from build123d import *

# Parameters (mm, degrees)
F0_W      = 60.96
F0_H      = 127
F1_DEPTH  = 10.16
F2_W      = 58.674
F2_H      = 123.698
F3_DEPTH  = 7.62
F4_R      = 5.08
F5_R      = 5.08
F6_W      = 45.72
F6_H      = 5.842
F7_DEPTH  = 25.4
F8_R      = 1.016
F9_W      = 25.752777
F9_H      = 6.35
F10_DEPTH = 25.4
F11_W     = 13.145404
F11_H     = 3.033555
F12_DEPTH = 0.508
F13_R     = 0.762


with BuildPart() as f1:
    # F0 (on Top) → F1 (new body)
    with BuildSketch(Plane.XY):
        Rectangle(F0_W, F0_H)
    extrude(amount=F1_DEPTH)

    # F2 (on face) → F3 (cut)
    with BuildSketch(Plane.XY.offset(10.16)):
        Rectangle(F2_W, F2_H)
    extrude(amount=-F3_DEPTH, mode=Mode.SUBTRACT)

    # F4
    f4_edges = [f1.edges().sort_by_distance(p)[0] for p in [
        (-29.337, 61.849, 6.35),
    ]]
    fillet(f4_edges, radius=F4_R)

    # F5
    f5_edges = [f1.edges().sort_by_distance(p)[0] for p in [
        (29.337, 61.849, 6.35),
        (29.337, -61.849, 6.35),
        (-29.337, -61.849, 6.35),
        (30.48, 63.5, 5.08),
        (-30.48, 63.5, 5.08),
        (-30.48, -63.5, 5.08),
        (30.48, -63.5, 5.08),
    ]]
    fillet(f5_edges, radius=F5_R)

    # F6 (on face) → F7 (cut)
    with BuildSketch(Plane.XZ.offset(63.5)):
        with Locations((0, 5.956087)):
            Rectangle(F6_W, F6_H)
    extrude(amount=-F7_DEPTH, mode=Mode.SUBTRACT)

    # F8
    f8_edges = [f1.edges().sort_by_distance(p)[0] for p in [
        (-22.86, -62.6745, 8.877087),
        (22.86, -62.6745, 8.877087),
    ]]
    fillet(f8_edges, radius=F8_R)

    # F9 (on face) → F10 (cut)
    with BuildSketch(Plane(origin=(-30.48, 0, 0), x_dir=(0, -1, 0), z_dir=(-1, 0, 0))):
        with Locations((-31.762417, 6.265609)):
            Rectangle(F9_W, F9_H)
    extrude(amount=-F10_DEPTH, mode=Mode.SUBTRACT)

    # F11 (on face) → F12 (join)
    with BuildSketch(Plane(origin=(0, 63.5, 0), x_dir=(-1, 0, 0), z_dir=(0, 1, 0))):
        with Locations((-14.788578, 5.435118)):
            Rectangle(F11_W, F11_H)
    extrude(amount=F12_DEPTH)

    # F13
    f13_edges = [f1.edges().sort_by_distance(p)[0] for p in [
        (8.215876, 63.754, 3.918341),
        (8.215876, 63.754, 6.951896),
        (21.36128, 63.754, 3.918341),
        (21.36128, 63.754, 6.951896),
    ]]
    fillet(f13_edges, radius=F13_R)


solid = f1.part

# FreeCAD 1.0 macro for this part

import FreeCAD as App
import Part
import Sketcher
from FreeCAD import Vector
Q = App.Units.Quantity


def edges_at(feature, points):
    """Names of the edges that pass closest to the given points."""
    edges = feature.Shape.Edges
    near = lambda p: min(range(len(edges)), key=lambda i: edges[i].distToShape(Part.Vertex(*p))[0])
    return sorted({f"Edge{near(p) + 1}" for p in points})

doc = App.newDocument("Part")
params = doc.addObject("Spreadsheet::Sheet", "Params")
for row, (alias, value) in enumerate([
    ("sketch1_height", "5 in"),
    ("sketch1_width", "2.4 in"),
    ("pad1_length", "0.4 in"),
    ("sketch2_width", "2.31 in"),
    ("sketch2_height", "4.87 in"),
    ("pocket1_length", "0.3 in"),
    ("fillet_radius", "0.2 in"),
    ("fillet2_radius", "0.2 in"),
    ("sketch3_width", "1.8 in"),
    ("sketch3_height", "0.23 in"),
    ("pocket2_length", "1 in"),
    ("fillet3_radius", "0.04 in"),
    ("sketch4_height", "0.25 in"),
    ("pocket3_length", "1 in"),
    ("pad2_length", "0.02 in"),
    ("fillet4_radius", "0.03 in"),
], start=1):
    params.set(f"A{row}", alias)
    params.set(f"B{row}", "=" + value)
    params.setAlias(f"B{row}", alias)

body = doc.addObject("PartDesign::Body", "Body")

# Sketch on XY plane
sketch1 = body.newObject("Sketcher::SketchObject", "Sketch")
sketch1.AttachmentSupport = (doc.getObject("XY_Plane"), [""])
sketch1.MapMode = "FlatFace"
sketch1.addGeometry([
    Part.LineSegment(Vector(-30.48, 63.5, 0), Vector(-30.48, -63.5, 0)),
    Part.LineSegment(Vector(-30.48, -63.5, 0), Vector(30.48, -63.5, 0)),
    Part.LineSegment(Vector(30.48, -63.5, 0), Vector(30.48, 63.5, 0)),
    Part.LineSegment(Vector(30.48, 63.5, 0), Vector(-30.48, 63.5, 0)),
], False)
sketch1.addConstraint([
    Sketcher.Constraint("Coincident", 0, 2, 1, 1),
    Sketcher.Constraint("Coincident", 1, 2, 2, 1),
    Sketcher.Constraint("Coincident", 2, 2, 3, 1),
    Sketcher.Constraint("Coincident", 3, 2, 0, 1),
    Sketcher.Constraint("Vertical", 0),
    Sketcher.Constraint("Horizontal", 1),
    Sketcher.Constraint("Vertical", 2),
    Sketcher.Constraint("Horizontal", 3),
    Sketcher.Constraint("Symmetric", 0, 2, 2, 2, -1, 1),
    Sketcher.Constraint("DistanceY", 0, 2, 0, 1, Q("5 in")),
    Sketcher.Constraint("DistanceX", 1, 1, 1, 2, Q("2.4 in")),
])
sketch1.setExpression("Constraints[9]", "Params.sketch1_height")
sketch1.setExpression("Constraints[10]", "Params.sketch1_width")
pad1 = body.newObject("PartDesign::Pad", "Pad")
pad1.Profile = sketch1
pad1.setExpression("Length", "Params.pad1_length")

# Sketch on XY plane
sketch2 = body.newObject("Sketcher::SketchObject", "Sketch001")
sketch2.AttachmentSupport = (doc.getObject("XY_Plane"), [""])
sketch2.MapMode = "FlatFace"
sketch2.AttachmentOffset = App.Placement(Vector(0, 0, 0.4 * 25.4), App.Rotation())
sketch2.addGeometry([
    Part.LineSegment(Vector(-29.337, 61.849, 0), Vector(-29.337, -61.849, 0)),
    Part.LineSegment(Vector(-29.337, -61.849, 0), Vector(29.337, -61.849, 0)),
    Part.LineSegment(Vector(29.337, -61.849, 0), Vector(29.337, 61.849, 0)),
    Part.LineSegment(Vector(29.337, 61.849, 0), Vector(-29.337, 61.849, 0)),
], False)
sketch2.addConstraint([
    Sketcher.Constraint("Coincident", 0, 2, 1, 1),
    Sketcher.Constraint("Coincident", 1, 2, 2, 1),
    Sketcher.Constraint("Coincident", 2, 2, 3, 1),
    Sketcher.Constraint("Coincident", 3, 2, 0, 1),
    Sketcher.Constraint("Vertical", 0),
    Sketcher.Constraint("Horizontal", 1),
    Sketcher.Constraint("Vertical", 2),
    Sketcher.Constraint("Horizontal", 3),
    Sketcher.Constraint("Symmetric", 0, 2, 2, 2, -1, 1),
    Sketcher.Constraint("DistanceX", 1, 1, 1, 2, Q("2.31 in")),
    Sketcher.Constraint("DistanceY", 0, 2, 0, 1, Q("4.87 in")),
])
sketch2.setExpression("Constraints[9]", "Params.sketch2_width")
sketch2.setExpression("Constraints[10]", "Params.sketch2_height")
pocket1 = body.newObject("PartDesign::Pocket", "Pocket")
pocket1.Profile = sketch2
pocket1.setExpression("Length", "Params.pocket1_length")
doc.recompute()

fillet = body.newObject("PartDesign::Fillet", "Fillet")
fillet.Base = (pocket1, edges_at(pocket1, [(-29.337, 61.849, 6.35)]))
fillet.setExpression("Radius", "Params.fillet_radius")
doc.recompute()

fillet2 = body.newObject("PartDesign::Fillet", "Fillet001")
fillet2.Base = (fillet, edges_at(fillet, [
    (29.337, 61.849, 6.35),
    (29.337, -61.849, 6.35),
    (-29.337, -61.849, 6.35),
    (30.48, 63.5, 5.08),
    (-30.48, 63.5, 5.08),
    (-30.48, -63.5, 5.08),
    (30.48, -63.5, 5.08),
]))
fillet2.setExpression("Radius", "Params.fillet2_radius")

# Sketch on XZ plane
sketch3 = body.newObject("Sketcher::SketchObject", "Sketch002")
sketch3.AttachmentSupport = (doc.getObject("XZ_Plane"), [""])
sketch3.MapMode = "FlatFace"
sketch3.AttachmentOffset = App.Placement(Vector(0, 0, 2.5 * 25.4), App.Rotation())
sketch3.addGeometry([
    Part.LineSegment(Vector(-22.86, 8.877087, 0), Vector(-22.86, 3.035087, 0)),
    Part.LineSegment(Vector(-22.86, 3.035087, 0), Vector(22.86, 3.035087, 0)),
    Part.LineSegment(Vector(22.86, 3.035087, 0), Vector(22.86, 8.877087, 0)),
    Part.LineSegment(Vector(22.86, 8.877087, 0), Vector(-22.86, 8.877087, 0)),
], False)
sketch3.addConstraint([
    Sketcher.Constraint("Coincident", 0, 2, 1, 1),
    Sketcher.Constraint("Coincident", 1, 2, 2, 1),
    Sketcher.Constraint("Coincident", 2, 2, 3, 1),
    Sketcher.Constraint("Coincident", 3, 2, 0, 1),
    Sketcher.Constraint("Vertical", 0),
    Sketcher.Constraint("Horizontal", 1),
    Sketcher.Constraint("Vertical", 2),
    Sketcher.Constraint("Horizontal", 3),
    Sketcher.Constraint("DistanceX", 1, 1, 1, 2, Q("1.8 in")),
    Sketcher.Constraint("DistanceY", 0, 2, 0, 1, Q("0.23 in")),
    Sketcher.Constraint("DistanceX", 0, 2, -1, 1, Q("0.9 in")),
    Sketcher.Constraint("DistanceY", -1, 1, 0, 2, 3.035087),
])
sketch3.setExpression("Constraints[8]", "Params.sketch3_width")
sketch3.setExpression("Constraints[9]", "Params.sketch3_height")
pocket2 = body.newObject("PartDesign::Pocket", "Pocket001")
pocket2.Profile = sketch3
pocket2.setExpression("Length", "Params.pocket2_length")
doc.recompute()

fillet3 = body.newObject("PartDesign::Fillet", "Fillet002")
fillet3.Base = (pocket2, edges_at(pocket2, [(-22.86, -62.675, 8.877), (22.86, -62.675, 8.877)]))
fillet3.setExpression("Radius", "Params.fillet3_radius")

# Sketch on YZ plane
sketch4 = body.newObject("Sketcher::SketchObject", "Sketch003")
sketch4.AttachmentSupport = (doc.getObject("YZ_Plane"), [""])
sketch4.MapMode = "FlatFace"
sketch4.AttachmentOffset = App.Placement(Vector(0, 0, -1.2 * 25.4), App.Rotation())
sketch4.addGeometry([
    Part.LineSegment(Vector(44.638805, 9.440609, 0), Vector(44.638805, 3.090609, 0)),
    Part.LineSegment(Vector(44.638805, 3.090609, 0), Vector(18.886028, 3.090609, 0)),
    Part.LineSegment(Vector(18.886028, 3.090609, 0), Vector(18.886028, 9.440609, 0)),
    Part.LineSegment(Vector(18.886028, 9.440609, 0), Vector(44.638805, 9.440609, 0)),
], False)
sketch4.addConstraint([
    Sketcher.Constraint("Coincident", 0, 2, 1, 1),
    Sketcher.Constraint("Coincident", 1, 2, 2, 1),
    Sketcher.Constraint("Coincident", 2, 2, 3, 1),
    Sketcher.Constraint("Coincident", 3, 2, 0, 1),
    Sketcher.Constraint("Vertical", 0),
    Sketcher.Constraint("Horizontal", 1),
    Sketcher.Constraint("Vertical", 2),
    Sketcher.Constraint("Horizontal", 3),
    Sketcher.Constraint("DistanceY", 0, 2, 0, 1, Q("0.25 in")),
    Sketcher.Constraint("DistanceX", 1, 2, 1, 1, 25.752777),
    Sketcher.Constraint("DistanceY", -1, 1, 0, 2, 3.090609),
    Sketcher.Constraint("DistanceX", -1, 1, 1, 2, 18.886028),
])
sketch4.setExpression("Constraints[8]", "Params.sketch4_height")
pocket3 = body.newObject("PartDesign::Pocket", "Pocket002")
pocket3.Profile = sketch4
pocket3.setExpression("Length", "Params.pocket3_length")
pocket3.Reversed = True

# Sketch on XZ plane
sketch5 = body.newObject("Sketcher::SketchObject", "Sketch004")
sketch5.AttachmentSupport = (doc.getObject("XZ_Plane"), [""])
sketch5.MapMode = "FlatFace"
sketch5.AttachmentOffset = App.Placement(Vector(0, 0, -2.5 * 25.4), App.Rotation())
sketch5.addGeometry([
    Part.LineSegment(Vector(21.36128, 6.951896, 0), Vector(21.36128, 3.91834, 0)),
    Part.LineSegment(Vector(21.36128, 3.91834, 0), Vector(8.215876, 3.91834, 0)),
    Part.LineSegment(Vector(8.215876, 3.91834, 0), Vector(8.215876, 6.951896, 0)),
    Part.LineSegment(Vector(8.215876, 6.951896, 0), Vector(21.36128, 6.951896, 0)),
], False)
sketch5.addConstraint([
    Sketcher.Constraint("Coincident", 0, 2, 1, 1),
    Sketcher.Constraint("Coincident", 1, 2, 2, 1),
    Sketcher.Constraint("Coincident", 2, 2, 3, 1),
    Sketcher.Constraint("Coincident", 3, 2, 0, 1),
    Sketcher.Constraint("Vertical", 0),
    Sketcher.Constraint("Horizontal", 1),
    Sketcher.Constraint("Vertical", 2),
    Sketcher.Constraint("Horizontal", 3),
    Sketcher.Constraint("DistanceX", 1, 2, 1, 1, 13.145404),
    Sketcher.Constraint("DistanceY", 0, 2, 0, 1, 3.033555),
    Sketcher.Constraint("DistanceX", -1, 1, 0, 2, 21.36128),
    Sketcher.Constraint("DistanceY", -1, 1, 0, 2, 3.91834),
])
pad2 = body.newObject("PartDesign::Pad", "Pad001")
pad2.Profile = sketch5
pad2.setExpression("Length", "Params.pad2_length")
pad2.Reversed = True
doc.recompute()

fillet4 = body.newObject("PartDesign::Fillet", "Fillet003")
fillet4.Base = (pad2, edges_at(pad2, [
    (8.216, 63.754, 3.918),
    (8.216, 63.754, 6.952),
    (21.361, 63.754, 3.918),
    (21.361, 63.754, 6.952),
]))
fillet4.setExpression("Radius", "Params.fillet4_radius")

doc.recompute()
